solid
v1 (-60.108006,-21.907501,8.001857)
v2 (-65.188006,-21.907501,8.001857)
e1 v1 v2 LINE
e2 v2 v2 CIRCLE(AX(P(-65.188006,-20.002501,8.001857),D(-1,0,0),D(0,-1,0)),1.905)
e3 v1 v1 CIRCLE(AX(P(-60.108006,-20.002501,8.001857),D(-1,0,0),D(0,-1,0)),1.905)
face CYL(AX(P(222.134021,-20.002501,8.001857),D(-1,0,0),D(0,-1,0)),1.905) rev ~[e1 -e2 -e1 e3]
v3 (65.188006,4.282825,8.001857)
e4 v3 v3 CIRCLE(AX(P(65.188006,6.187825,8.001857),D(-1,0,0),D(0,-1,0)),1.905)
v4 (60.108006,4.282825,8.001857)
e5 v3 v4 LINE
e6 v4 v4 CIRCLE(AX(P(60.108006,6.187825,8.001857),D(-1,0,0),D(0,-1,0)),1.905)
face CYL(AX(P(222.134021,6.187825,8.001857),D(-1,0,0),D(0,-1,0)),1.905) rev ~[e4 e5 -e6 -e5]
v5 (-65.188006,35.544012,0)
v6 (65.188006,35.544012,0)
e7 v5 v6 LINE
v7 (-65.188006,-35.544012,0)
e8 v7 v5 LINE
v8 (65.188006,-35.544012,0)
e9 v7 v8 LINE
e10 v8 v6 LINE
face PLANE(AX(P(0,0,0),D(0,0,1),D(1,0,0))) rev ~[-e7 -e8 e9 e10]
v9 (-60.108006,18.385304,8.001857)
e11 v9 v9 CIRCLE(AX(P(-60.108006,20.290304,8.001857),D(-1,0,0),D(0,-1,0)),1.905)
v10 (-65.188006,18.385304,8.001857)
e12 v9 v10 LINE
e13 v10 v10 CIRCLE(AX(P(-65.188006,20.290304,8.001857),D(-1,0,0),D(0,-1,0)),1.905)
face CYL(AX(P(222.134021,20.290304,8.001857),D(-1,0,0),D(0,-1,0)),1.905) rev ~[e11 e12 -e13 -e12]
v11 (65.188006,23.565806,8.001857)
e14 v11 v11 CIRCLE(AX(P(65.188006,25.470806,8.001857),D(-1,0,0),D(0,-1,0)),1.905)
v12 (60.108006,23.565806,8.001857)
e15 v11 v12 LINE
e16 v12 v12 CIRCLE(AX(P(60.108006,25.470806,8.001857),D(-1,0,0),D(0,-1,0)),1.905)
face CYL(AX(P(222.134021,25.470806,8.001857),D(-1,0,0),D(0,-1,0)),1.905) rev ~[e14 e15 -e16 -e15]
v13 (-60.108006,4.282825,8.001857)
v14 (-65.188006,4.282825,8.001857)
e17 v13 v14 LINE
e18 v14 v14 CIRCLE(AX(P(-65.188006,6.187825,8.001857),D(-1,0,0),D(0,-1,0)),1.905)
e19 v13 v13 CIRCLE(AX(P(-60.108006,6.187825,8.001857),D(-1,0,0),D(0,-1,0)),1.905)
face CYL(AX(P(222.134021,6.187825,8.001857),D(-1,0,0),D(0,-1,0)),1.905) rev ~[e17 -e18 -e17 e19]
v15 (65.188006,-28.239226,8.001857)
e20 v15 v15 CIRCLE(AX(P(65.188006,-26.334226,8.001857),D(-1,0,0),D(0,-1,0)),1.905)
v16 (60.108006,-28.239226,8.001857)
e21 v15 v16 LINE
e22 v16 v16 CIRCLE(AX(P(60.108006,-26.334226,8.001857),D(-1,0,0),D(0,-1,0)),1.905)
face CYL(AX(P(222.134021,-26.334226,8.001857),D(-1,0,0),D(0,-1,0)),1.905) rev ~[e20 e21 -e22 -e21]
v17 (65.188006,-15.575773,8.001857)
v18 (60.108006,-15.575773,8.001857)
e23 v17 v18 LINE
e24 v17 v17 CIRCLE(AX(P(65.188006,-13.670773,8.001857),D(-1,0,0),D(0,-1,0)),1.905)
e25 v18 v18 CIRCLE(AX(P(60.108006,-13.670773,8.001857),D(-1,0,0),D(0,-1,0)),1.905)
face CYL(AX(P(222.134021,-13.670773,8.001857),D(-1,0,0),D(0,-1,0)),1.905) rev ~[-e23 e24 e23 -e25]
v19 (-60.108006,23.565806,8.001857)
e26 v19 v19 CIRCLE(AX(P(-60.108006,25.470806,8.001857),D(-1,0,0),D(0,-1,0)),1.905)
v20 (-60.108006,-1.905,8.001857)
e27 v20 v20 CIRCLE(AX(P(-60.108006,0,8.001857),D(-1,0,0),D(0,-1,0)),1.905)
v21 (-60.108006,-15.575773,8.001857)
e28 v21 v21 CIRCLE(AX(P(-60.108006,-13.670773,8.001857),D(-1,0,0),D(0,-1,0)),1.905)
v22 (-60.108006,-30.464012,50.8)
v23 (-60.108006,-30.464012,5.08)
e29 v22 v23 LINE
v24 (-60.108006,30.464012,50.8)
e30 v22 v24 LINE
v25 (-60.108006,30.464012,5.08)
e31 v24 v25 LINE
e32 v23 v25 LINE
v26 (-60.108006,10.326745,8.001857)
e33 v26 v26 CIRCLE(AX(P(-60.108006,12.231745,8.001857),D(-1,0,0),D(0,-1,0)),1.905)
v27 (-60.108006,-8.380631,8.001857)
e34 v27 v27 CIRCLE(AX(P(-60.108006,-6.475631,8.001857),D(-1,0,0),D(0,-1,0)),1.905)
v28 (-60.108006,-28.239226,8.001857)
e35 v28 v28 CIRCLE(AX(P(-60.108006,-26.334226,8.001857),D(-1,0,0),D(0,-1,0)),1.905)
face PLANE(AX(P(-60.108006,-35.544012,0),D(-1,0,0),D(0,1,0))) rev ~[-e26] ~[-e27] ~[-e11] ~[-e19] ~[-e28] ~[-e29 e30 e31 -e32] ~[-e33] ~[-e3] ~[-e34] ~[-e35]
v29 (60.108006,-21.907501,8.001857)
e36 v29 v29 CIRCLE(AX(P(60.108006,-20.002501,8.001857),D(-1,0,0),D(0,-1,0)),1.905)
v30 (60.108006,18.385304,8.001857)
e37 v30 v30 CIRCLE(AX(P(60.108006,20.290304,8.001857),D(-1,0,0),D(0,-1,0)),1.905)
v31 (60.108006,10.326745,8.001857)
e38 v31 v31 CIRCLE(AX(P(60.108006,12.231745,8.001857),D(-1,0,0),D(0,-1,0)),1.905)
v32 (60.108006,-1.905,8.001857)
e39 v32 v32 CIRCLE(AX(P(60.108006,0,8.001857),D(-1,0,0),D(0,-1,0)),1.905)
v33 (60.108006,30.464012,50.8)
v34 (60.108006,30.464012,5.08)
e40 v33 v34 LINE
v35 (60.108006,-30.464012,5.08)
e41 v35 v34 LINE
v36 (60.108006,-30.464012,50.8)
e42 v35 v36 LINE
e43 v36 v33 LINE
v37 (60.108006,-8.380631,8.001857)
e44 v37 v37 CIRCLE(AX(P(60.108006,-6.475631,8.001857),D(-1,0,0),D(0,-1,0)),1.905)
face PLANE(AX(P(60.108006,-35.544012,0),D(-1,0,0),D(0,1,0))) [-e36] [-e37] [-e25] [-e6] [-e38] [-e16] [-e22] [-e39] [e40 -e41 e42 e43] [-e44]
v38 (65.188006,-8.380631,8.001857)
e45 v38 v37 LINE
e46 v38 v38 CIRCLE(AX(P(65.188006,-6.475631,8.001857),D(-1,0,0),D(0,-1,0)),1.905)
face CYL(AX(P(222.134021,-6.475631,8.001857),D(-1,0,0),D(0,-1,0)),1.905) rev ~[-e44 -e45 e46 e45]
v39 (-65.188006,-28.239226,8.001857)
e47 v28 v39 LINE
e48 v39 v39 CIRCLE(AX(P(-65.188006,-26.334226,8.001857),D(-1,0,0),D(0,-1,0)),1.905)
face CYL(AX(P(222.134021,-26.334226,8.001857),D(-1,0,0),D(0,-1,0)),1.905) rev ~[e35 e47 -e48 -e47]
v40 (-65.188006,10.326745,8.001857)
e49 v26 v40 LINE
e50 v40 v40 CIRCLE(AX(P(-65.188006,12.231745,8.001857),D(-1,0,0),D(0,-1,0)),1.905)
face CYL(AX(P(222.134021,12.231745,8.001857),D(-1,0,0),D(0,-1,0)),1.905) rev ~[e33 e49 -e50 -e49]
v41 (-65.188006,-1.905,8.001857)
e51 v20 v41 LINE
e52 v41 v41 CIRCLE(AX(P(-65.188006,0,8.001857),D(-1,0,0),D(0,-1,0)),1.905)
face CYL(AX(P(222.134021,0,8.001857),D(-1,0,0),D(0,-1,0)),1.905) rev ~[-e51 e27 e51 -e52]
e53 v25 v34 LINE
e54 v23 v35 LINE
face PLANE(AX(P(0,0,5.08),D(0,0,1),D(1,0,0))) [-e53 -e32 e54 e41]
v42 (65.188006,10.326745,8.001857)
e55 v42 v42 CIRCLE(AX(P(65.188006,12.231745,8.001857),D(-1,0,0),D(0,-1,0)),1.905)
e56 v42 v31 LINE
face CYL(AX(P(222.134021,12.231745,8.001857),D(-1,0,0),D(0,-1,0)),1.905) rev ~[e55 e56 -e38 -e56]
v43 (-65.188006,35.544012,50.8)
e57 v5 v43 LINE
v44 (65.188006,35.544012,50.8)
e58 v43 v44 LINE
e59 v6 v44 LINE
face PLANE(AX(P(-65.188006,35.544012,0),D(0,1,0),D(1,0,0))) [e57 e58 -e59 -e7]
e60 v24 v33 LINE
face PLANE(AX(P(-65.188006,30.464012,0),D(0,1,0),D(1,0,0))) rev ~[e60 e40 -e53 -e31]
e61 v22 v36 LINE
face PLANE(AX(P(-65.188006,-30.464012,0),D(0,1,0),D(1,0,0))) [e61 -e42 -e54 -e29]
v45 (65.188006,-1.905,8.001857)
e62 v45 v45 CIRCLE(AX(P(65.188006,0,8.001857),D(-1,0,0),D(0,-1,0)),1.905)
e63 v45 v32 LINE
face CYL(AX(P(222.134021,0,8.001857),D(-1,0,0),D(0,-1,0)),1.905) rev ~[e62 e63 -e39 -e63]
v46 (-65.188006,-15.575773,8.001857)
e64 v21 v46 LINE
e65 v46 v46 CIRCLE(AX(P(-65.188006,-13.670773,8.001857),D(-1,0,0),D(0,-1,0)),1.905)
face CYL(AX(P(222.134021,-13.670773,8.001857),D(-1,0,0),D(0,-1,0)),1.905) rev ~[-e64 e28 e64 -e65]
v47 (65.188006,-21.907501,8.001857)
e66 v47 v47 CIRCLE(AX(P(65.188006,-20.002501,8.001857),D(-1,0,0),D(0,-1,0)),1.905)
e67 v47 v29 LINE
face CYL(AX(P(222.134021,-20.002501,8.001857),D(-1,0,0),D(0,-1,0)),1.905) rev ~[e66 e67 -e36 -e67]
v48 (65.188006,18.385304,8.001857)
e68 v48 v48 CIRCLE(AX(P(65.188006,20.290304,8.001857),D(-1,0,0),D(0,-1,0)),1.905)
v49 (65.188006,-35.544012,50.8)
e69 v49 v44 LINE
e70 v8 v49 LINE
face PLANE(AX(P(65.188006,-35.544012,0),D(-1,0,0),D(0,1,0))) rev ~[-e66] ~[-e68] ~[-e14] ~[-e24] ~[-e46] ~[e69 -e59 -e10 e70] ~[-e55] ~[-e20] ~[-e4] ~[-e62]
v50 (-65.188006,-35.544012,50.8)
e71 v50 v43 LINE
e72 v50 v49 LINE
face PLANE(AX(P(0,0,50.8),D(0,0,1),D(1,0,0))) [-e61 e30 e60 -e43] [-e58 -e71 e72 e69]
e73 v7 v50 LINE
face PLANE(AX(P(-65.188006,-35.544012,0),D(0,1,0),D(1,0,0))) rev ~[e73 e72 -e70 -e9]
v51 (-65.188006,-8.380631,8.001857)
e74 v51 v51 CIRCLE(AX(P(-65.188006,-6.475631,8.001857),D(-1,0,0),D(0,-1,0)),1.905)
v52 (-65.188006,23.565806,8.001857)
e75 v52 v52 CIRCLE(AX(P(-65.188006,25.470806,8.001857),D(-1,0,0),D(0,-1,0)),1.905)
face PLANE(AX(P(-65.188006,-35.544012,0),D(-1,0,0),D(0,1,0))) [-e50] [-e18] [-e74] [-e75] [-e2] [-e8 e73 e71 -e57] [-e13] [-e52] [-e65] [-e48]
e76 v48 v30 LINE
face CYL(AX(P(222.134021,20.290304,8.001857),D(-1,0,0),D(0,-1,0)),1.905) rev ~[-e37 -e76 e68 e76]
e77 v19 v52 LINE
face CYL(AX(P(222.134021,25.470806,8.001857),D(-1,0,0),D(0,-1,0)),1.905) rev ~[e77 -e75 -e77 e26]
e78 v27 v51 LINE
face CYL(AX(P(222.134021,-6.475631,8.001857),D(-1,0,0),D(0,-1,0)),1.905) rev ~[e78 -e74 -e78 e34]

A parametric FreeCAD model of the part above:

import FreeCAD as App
import Part
import Sketcher

V = App.Vector
Q = App.Units.Quantity


def faces_at(feature, points):
    """Names of the faces that lie closest to the given points."""
    faces = feature.Shape.Faces
    near = lambda p: min(range(len(faces)), key=lambda i: faces[i].distToShape(Part.Vertex(*p))[0])
    return sorted({f"Face{near(p) + 1}" for p in points})

doc = App.newDocument("Part")
body = doc.addObject("PartDesign::Body", "Body")

# Sketch on XY plane
sketch1 = body.newObject("Sketcher::SketchObject", "Sketch")
sketch1.AttachmentSupport = (doc.getObject("XY_Plane"), [""])
sketch1.MapMode = "FlatFace"
sketch1.addGeometry(Part.LineSegment(V(-65, 36, 0), V(-65, -36, 0)), False)
sketch1.addGeometry(Part.LineSegment(V(-65, -36, 0), V(65, -36, 0)), False)
sketch1.addGeometry(Part.LineSegment(V(65, -36, 0), V(65, 36, 0)), False)
sketch1.addGeometry(Part.LineSegment(V(65, 36, 0), V(-65, 36, 0)), False)
sketch1.addConstraint(Sketcher.Constraint("Coincident", 0, 2, 1, 1))
sketch1.addConstraint(Sketcher.Constraint("Coincident", 1, 2, 2, 1))
sketch1.addConstraint(Sketcher.Constraint("Coincident", 2, 2, 3, 1))
sketch1.addConstraint(Sketcher.Constraint("Coincident", 3, 2, 0, 1))
sketch1.addConstraint(Sketcher.Constraint("Vertical", 0))
sketch1.addConstraint(Sketcher.Constraint("Horizontal", 1))
sketch1.addConstraint(Sketcher.Constraint("Vertical", 2))
sketch1.addConstraint(Sketcher.Constraint("Horizontal", 3))
sketch1.addConstraint(Sketcher.Constraint("Symmetric", 0, 2, 2, 2, -1, 1))
sketch1.addConstraint(Sketcher.Constraint("DistanceX", 1, 1, 1, 2, 130.376012))
sketch1.addConstraint(Sketcher.Constraint("DistanceY", 0, 2, 0, 1, 71.088024))
pad1 = body.newObject("PartDesign::Pad", "Pad")
pad1.Profile = sketch1
pad1.Length = Q("2 in")
doc.recompute()

thickness = body.newObject("PartDesign::Thickness", "Thickness")
thickness.Base = (pad1, faces_at(pad1, [(0, 0, 50.8)]))
thickness.Value = Q("0.2 in")
thickness.Reversed = True
thickness.Join = "Arc"

# Sketch on YZ plane
sketch2 = body.newObject("Sketcher::SketchObject", "Sketch001")
sketch2.AttachmentSupport = (doc.getObject("YZ_Plane"), [""])
sketch2.MapMode = "FlatFace"
sketch2.AttachmentOffset = App.Placement(V(0, 0, 65.188006), App.Rotation())
sketch2.addGeometry(Part.Circle(V(-26.3, 8, 0), V(0, 0, 1), 1.9), False)
sketch2.addGeometry(Part.Circle(V(-20, 8, 0), V(0, 0, 1), 1.9), False)
sketch2.addGeometry(Part.Circle(V(-13.7, 8, 0), V(0, 0, 1), 1.9), False)
sketch2.addGeometry(Part.Circle(V(-6.5, 8, 0), V(0, 0, 1), 1.9), False)
sketch2.addGeometry(Part.Circle(V(0, 8, 0), V(0, 0, 1), 1.9), False)
sketch2.addGeometry(Part.Circle(V(6.2, 8, 0), V(0, 0, 1), 1.9), False)
sketch2.addGeometry(Part.Circle(V(12.2, 8, 0), V(0, 0, 1), 1.9), False)
sketch2.addGeometry(Part.Circle(V(20.3, 8, 0), V(0, 0, 1), 1.9), False)
sketch2.addGeometry(Part.Circle(V(25.5, 8, 0), V(0, 0, 1), 1.9), False)
sketch2.addConstraint(Sketcher.Constraint("Equal", 0, 1))
sketch2.addConstraint(Sketcher.Constraint("Equal", 1, 2))
sketch2.addConstraint(Sketcher.Constraint("Equal", 2, 3))
sketch2.addConstraint(Sketcher.Constraint("Equal", 3, 4))
sketch2.addConstraint(Sketcher.Constraint("Equal", 4, 5))
sketch2.addConstraint(Sketcher.Constraint("Equal", 5, 6))
sketch2.addConstraint(Sketcher.Constraint("Equal", 6, 7))
sketch2.addConstraint(Sketcher.Constraint("Equal", 7, 8))
sketch2.addConstraint(Sketcher.Constraint("PointOnObject", 4, 3, -2))
sketch2.addConstraint(Sketcher.Constraint("Horizontal", 0, 3, 1, 3))
sketch2.addConstraint(Sketcher.Constraint("Horizontal", 1, 3, 2, 3))
sketch2.addConstraint(Sketcher.Constraint("Horizontal", 2, 3, 3, 3))
sketch2.addConstraint(Sketcher.Constraint("Horizontal", 3, 3, 4, 3))
sketch2.addConstraint(Sketcher.Constraint("Horizontal", 4, 3, 5, 3))
sketch2.addConstraint(Sketcher.Constraint("Horizontal", 5, 3, 6, 3))
sketch2.addConstraint(Sketcher.Constraint("Horizontal", 6, 3, 7, 3))
sketch2.addConstraint(Sketcher.Constraint("Horizontal", 7, 3, 8, 3))
sketch2.addConstraint(Sketcher.Constraint("Diameter", 0, Q("0.15 in")))
sketch2.addConstraint(Sketcher.Constraint("DistanceX", 1, 3, -1, 1, Q("0.7875 in")))
sketch2.addConstraint(Sketcher.Constraint("DistanceX", 2, 3, 5, 3, 19.858598))
sketch2.addConstraint(Sketcher.Constraint("DistanceX", 3, 3, -1, 1, 6.475631))
sketch2.addConstraint(Sketcher.Constraint("DistanceX", 0, 3, 5, 3, 32.522051))
sketch2.addConstraint(Sketcher.Constraint("DistanceX", 5, 3, 6, 3, 6.04392))
sketch2.addConstraint(Sketcher.Constraint("DistanceX", 6, 3, 7, 3, 8.058559))
sketch2.addConstraint(Sketcher.Constraint("DistanceX", 6, 3, 8, 3, 13.239061))
sketch2.addConstraint(Sketcher.Constraint("DistanceX", 0, 3, -1, 1, 26.334226))
sketch2.addConstraint(Sketcher.Constraint("DistanceY", -1, 1, 0, 3, 8.001857))
doc.recompute()
hole = body.newObject("PartDesign::Hole", "Hole")
hole.Profile = sketch2
hole.ThreadType = "None"
hole.Diameter = Q("0.15 in")
hole.DepthType = "ThroughAll"

doc.recompute()
